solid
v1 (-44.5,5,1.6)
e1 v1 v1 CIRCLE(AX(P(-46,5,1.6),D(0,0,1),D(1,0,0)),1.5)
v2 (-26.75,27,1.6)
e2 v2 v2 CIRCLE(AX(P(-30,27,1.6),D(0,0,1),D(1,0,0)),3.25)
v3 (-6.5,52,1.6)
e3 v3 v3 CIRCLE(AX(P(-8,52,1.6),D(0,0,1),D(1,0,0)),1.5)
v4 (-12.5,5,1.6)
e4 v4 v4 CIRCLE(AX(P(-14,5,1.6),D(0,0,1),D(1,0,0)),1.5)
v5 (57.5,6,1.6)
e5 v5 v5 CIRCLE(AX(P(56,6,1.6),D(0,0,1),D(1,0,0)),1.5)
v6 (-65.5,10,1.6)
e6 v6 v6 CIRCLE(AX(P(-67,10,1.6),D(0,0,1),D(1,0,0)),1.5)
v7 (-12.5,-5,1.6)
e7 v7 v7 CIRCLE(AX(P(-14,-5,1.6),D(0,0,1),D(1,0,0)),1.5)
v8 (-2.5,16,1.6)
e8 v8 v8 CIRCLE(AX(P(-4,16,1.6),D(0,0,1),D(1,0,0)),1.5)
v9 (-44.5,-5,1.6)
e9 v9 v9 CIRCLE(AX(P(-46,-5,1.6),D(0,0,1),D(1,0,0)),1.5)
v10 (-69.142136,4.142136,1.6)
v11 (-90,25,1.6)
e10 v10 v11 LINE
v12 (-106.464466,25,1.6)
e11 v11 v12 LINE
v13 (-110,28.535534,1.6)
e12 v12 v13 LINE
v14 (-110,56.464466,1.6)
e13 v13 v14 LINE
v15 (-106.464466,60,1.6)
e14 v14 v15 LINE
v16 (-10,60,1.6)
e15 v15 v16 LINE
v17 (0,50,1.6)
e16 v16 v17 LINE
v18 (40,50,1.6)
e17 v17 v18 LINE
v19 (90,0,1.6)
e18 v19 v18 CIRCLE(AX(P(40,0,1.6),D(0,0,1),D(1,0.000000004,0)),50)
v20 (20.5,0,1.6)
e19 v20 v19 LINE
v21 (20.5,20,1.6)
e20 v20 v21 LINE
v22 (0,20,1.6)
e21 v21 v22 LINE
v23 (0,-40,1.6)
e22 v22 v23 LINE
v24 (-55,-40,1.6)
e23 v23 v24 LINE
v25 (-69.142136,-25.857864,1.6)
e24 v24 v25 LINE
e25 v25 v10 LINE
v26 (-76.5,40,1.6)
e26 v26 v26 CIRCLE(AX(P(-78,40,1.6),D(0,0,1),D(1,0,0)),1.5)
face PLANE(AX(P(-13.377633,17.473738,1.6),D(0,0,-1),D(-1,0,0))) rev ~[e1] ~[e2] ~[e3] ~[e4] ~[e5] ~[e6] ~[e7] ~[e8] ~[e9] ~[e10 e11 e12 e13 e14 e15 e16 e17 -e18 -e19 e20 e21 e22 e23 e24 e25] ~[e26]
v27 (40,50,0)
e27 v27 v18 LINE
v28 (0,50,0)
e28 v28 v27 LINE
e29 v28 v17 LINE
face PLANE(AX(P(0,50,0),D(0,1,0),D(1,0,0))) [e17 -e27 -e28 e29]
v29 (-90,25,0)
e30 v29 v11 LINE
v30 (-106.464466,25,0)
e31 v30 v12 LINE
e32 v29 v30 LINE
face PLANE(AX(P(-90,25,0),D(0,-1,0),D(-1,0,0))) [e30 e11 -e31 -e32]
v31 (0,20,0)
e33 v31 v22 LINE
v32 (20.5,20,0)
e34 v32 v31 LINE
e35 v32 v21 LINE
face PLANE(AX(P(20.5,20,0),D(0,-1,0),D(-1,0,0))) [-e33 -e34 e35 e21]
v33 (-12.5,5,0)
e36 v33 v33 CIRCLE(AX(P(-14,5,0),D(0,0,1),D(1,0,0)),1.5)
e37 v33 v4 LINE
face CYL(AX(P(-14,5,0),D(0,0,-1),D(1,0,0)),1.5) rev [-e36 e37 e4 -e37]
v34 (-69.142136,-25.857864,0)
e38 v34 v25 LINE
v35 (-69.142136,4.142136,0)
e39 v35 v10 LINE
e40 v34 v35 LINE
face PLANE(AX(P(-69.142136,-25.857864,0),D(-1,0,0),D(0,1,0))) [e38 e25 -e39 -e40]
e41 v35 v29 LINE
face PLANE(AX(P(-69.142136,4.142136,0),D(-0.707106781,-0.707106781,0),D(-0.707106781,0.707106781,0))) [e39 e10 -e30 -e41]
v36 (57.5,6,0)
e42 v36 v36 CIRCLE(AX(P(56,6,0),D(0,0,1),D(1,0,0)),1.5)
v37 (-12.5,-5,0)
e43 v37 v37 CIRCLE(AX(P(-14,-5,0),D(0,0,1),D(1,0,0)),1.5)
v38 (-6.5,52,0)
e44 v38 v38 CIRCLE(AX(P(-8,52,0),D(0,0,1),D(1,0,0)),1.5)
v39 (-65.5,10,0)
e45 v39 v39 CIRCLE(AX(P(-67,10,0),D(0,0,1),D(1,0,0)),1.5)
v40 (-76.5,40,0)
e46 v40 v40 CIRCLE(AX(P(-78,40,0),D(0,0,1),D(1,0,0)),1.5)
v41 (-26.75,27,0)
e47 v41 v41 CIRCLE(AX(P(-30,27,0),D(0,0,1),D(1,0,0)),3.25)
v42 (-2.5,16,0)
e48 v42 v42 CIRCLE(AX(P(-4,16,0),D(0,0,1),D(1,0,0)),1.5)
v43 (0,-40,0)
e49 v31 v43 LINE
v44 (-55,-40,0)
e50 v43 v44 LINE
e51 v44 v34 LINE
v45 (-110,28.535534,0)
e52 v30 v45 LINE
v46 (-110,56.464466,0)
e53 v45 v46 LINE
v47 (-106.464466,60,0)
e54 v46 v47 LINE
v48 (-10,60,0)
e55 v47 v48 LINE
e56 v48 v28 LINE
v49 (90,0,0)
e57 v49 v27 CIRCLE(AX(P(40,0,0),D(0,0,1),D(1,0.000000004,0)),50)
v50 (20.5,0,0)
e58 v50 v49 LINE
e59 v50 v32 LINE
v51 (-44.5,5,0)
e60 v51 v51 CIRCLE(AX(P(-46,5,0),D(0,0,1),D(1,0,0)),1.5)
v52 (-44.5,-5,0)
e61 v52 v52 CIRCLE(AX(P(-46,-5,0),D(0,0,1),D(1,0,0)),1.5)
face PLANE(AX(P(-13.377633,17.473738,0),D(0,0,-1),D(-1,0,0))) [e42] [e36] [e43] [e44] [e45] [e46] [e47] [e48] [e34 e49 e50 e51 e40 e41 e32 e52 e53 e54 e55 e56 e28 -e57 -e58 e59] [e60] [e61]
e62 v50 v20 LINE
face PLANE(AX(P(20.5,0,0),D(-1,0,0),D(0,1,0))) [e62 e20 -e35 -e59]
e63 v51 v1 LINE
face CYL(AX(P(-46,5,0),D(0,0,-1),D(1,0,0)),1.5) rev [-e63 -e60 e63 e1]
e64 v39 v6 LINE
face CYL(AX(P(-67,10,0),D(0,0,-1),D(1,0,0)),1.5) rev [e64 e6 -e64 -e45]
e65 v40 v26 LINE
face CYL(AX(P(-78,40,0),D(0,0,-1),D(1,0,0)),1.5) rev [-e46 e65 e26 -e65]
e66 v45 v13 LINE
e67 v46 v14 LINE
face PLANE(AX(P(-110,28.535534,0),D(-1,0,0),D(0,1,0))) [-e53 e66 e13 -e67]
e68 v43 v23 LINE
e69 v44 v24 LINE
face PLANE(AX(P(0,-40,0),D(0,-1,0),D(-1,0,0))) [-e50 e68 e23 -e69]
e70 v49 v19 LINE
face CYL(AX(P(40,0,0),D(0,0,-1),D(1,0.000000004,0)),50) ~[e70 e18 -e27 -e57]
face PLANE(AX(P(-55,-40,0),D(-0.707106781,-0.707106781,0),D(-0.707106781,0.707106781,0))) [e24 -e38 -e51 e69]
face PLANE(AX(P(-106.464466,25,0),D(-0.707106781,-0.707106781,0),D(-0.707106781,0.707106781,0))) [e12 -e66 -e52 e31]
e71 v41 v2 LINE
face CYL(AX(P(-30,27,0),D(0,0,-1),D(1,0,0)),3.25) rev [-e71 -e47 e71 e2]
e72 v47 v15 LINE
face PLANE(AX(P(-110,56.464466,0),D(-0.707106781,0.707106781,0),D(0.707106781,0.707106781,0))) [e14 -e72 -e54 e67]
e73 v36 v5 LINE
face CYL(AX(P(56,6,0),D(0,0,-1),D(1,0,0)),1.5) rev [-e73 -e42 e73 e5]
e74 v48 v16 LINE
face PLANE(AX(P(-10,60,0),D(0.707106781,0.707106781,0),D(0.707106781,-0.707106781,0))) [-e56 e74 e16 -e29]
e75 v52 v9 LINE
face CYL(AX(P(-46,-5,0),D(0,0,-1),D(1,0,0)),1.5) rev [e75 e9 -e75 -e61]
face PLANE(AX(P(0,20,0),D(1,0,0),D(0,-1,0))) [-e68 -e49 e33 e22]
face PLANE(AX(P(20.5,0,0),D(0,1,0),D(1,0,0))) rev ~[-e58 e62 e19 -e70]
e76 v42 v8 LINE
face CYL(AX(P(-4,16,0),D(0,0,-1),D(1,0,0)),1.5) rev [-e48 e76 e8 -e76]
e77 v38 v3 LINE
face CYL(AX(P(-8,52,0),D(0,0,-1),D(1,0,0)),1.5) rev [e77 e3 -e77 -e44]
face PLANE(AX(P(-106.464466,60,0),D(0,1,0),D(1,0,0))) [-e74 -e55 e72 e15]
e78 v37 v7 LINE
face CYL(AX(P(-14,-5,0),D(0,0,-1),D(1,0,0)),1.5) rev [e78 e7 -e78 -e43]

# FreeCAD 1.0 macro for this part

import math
import FreeCAD as App
import Part
import Sketcher
Q = App.Units.Quantity

doc = App.newDocument("Part")
body = doc.addObject("PartDesign::Body", "Body")

sketch1 = doc.addObject("Sketcher::SketchObject", "Sketch")
body.addObject(sketch1)
sketch1.AttachmentSupport = (doc.XY_Plane, [""])
sketch1.MapMode = "FlatFace"
sketch1.addGeometry(Part.LineSegment(App.Vector(20.5, 20, 0), App.Vector(20.5, 0, 0)), False)
sketch1.addGeometry(Part.LineSegment(App.Vector(20.5, 0, 0), App.Vector(90, 0, 0)), False)
sketch1.addGeometry(Part.ArcOfCircle(Part.Circle(App.Vector(40, 0, 0), App.Vector(0, 0, 1), 50), math.radians(0), math.radians(90)), False)
sketch1.addGeometry(Part.LineSegment(App.Vector(40, 50, 0), App.Vector(0, 50, 0)), False)
sketch1.addGeometry(Part.LineSegment(App.Vector(0, 50, 0), App.Vector(-10, 60, 0)), False)
sketch1.addGeometry(Part.LineSegment(App.Vector(-10, 60, 0), App.Vector(-106.5, 60, 0)), False)
sketch1.addGeometry(Part.LineSegment(App.Vector(-106.5, 60, 0), App.Vector(-110, 56.5, 0)), False)
sketch1.addGeometry(Part.LineSegment(App.Vector(-110, 56.5, 0), App.Vector(-110, 28.5, 0)), False)
sketch1.addGeometry(Part.LineSegment(App.Vector(-110, 28.5, 0), App.Vector(-106.5, 25, 0)), False)
sketch1.addGeometry(Part.LineSegment(App.Vector(-106.5, 25, 0), App.Vector(-90, 25, 0)), False)
sketch1.addGeometry(Part.LineSegment(App.Vector(-90, 25, 0), App.Vector(-69.1, 4.1, 0)), False)
sketch1.addGeometry(Part.LineSegment(App.Vector(-69.1, 4.1, 0), App.Vector(-69.1, -25.9, 0)), False)
sketch1.addGeometry(Part.LineSegment(App.Vector(-69.1, -25.9, 0), App.Vector(-55, -40, 0)), False)
sketch1.addGeometry(Part.LineSegment(App.Vector(-55, -40, 0), App.Vector(0, -40, 0)), False)
sketch1.addGeometry(Part.LineSegment(App.Vector(0, -40, 0), App.Vector(0, 20, 0)), False)
sketch1.addGeometry(Part.LineSegment(App.Vector(0, 20, 0), App.Vector(20.5, 20, 0)), False)
sketch1.addGeometry(Part.Circle(App.Vector(56, 6, 0), App.Vector(0, 0, 1), 1.5), False)
sketch1.addGeometry(Part.Circle(App.Vector(-4, 16, 0), App.Vector(0, 0, 1), 1.5), False)
sketch1.addGeometry(Part.Circle(App.Vector(-14, -5, 0), App.Vector(0, 0, 1), 1.5), False)
sketch1.addGeometry(Part.Circle(App.Vector(-14, 5, 0), App.Vector(0, 0, 1), 1.5), False)
sketch1.addGeometry(Part.Circle(App.Vector(-46, -5, 0), App.Vector(0, 0, 1), 1.5), False)
sketch1.addGeometry(Part.Circle(App.Vector(-46, 5, 0), App.Vector(0, 0, 1), 1.5), False)
sketch1.addGeometry(Part.Circle(App.Vector(-67, 10, 0), App.Vector(0, 0, 1), 1.5), False)
sketch1.addGeometry(Part.Circle(App.Vector(-8, 52, 0), App.Vector(0, 0, 1), 1.5), False)
sketch1.addGeometry(Part.Circle(App.Vector(-30, 27, 0), App.Vector(0, 0, 1), 3.2), False)
sketch1.addGeometry(Part.Circle(App.Vector(-78, 40, 0), App.Vector(0, 0, 1), 1.5), False)
sketch1.addConstraint(Sketcher.Constraint("Coincident", 0, 2, 1, 1))
sketch1.addConstraint(Sketcher.Constraint("Coincident", 1, 2, 2, 1))
sketch1.addConstraint(Sketcher.Constraint("Tangent", 2, 2, 3, 1))
sketch1.addConstraint(Sketcher.Constraint("Coincident", 3, 2, 4, 1))
sketch1.addConstraint(Sketcher.Constraint("Coincident", 4, 2, 5, 1))
sketch1.addConstraint(Sketcher.Constraint("Coincident", 5, 2, 6, 1))
sketch1.addConstraint(Sketcher.Constraint("Coincident", 6, 2, 7, 1))
sketch1.addConstraint(Sketcher.Constraint("Coincident", 7, 2, 8, 1))
sketch1.addConstraint(Sketcher.Constraint("Coincident", 8, 2, 9, 1))
sketch1.addConstraint(Sketcher.Constraint("Coincident", 9, 2, 10, 1))
sketch1.addConstraint(Sketcher.Constraint("Coincident", 10, 2, 11, 1))
sketch1.addConstraint(Sketcher.Constraint("Coincident", 11, 2, 12, 1))
sketch1.addConstraint(Sketcher.Constraint("Coincident", 12, 2, 13, 1))
sketch1.addConstraint(Sketcher.Constraint("Coincident", 13, 2, 14, 1))
sketch1.addConstraint(Sketcher.Constraint("Coincident", 14, 2, 15, 1))
sketch1.addConstraint(Sketcher.Constraint("Coincident", 15, 2, 0, 1))
sketch1.addConstraint(Sketcher.Constraint("Vertical", 0))
sketch1.addConstraint(Sketcher.Constraint("Horizontal", 1))
sketch1.addConstraint(Sketcher.Constraint("Horizontal", 3))
sketch1.addConstraint(Sketcher.Constraint("Horizontal", 5))
sketch1.addConstraint(Sketcher.Constraint("Vertical", 7))
sketch1.addConstraint(Sketcher.Constraint("Horizontal", 9))
sketch1.addConstraint(Sketcher.Constraint("Vertical", 11))
sketch1.addConstraint(Sketcher.Constraint("Horizontal", 13))
sketch1.addConstraint(Sketcher.Constraint("Vertical", 14))
sketch1.addConstraint(Sketcher.Constraint("Horizontal", 15))
sketch1.addConstraint(Sketcher.Constraint("Equal", 16, 17))
sketch1.addConstraint(Sketcher.Constraint("Equal", 17, 18))
sketch1.addConstraint(Sketcher.Constraint("Equal", 18, 19))
sketch1.addConstraint(Sketcher.Constraint("Equal", 19, 20))
sketch1.addConstraint(Sketcher.Constraint("Equal", 20, 21))
sketch1.addConstraint(Sketcher.Constraint("Equal", 21, 22))
sketch1.addConstraint(Sketcher.Constraint("Equal", 22, 23))
sketch1.addConstraint(Sketcher.Constraint("Equal", 23, 25))
sketch1.addConstraint(Sketcher.Constraint("Symmetric", 18, 3, 19, 3, -1))
sketch1.addConstraint(Sketcher.Constraint("Symmetric", 20, 3, 21, 3, -1))
sketch1.addConstraint(Sketcher.Constraint("PointOnObject", 2, 3, -1))
sketch1.addConstraint(Sketcher.Constraint("PointOnObject", 0, 2, -1))
sketch1.addConstraint(Sketcher.Constraint("PointOnObject", 3, 2, -2))
sketch1.addConstraint(Sketcher.Constraint("PointOnObject", 13, 2, -2))
sketch1.addConstraint(Sketcher.Constraint("Perpendicular", 4, 6))
sketch1.addConstraint(Sketcher.Constraint("Perpendicular", 6, 8))
sketch1.addConstraint(Sketcher.Constraint("Parallel", 8, 10))
sketch1.addConstraint(Sketcher.Constraint("Parallel", 10, 12))
sketch1.addConstraint(Sketcher.Constraint("Horizontal", 18, 3, 20, 3))
sketch1.addConstraint(Sketcher.Constraint("Vertical", 5, 2, 8, 2))
sketch1.addConstraint(Sketcher.Constraint("Equal", 6, 8))
sketch1.addConstraint(Sketcher.Constraint("Diameter", 16, Q("3 mm")))
sketch1.addConstraint(Sketcher.Constraint("Radius", 2, Q("50 mm")))
sketch1.addConstraint(Sketcher.Constraint("Diameter", 24, Q("6.5 mm")))
sketch1.addConstraint(Sketcher.Constraint("DistanceX", 3, 2, 3, 1, Q("40 mm")))
sketch1.addConstraint(Sketcher.Constraint("DistanceX", 13, 1, 13, 2, Q("55 mm")))
sketch1.addConstraint(Sketcher.Constraint("DistanceY", 0, 2, 0, 1, Q("20 mm")))
sketch1.addConstraint(Sketcher.Constraint("DistanceY", 11, 2, 11, 1, Q("30 mm")))
sketch1.addConstraint(Sketcher.Constraint("DistanceY", 14, 1, 14, 2, Q("60 mm")))
sketch1.addConstraint(Sketcher.Constraint("Distance", 6, Q("5 mm")))
sketch1.addConstraint(Sketcher.Constraint("Distance", 12, Q("20.000001 mm")))
sketch1.addConstraint(Sketcher.Constraint("DistanceX", 1, 1, 1, 2, Q("69.5 mm")))
sketch1.addConstraint(Sketcher.Constraint("DistanceX", -1, 1, 16, 3, Q("56 mm")))
sketch1.addConstraint(Sketcher.Constraint("DistanceY", -1, 1, 16, 3, Q("6 mm")))
sketch1.addConstraint(Sketcher.Constraint("DistanceX", 17, 3, -1, 1, Q("4 mm")))
sketch1.addConstraint(Sketcher.Constraint("DistanceY", -1, 1, 17, 3, Q("16 mm")))
sketch1.addConstraint(Sketcher.Constraint("DistanceX", 18, 3, -1, 1, Q("14 mm")))
sketch1.addConstraint(Sketcher.Constraint("DistanceY", 18, 3, -1, 1, Q("5 mm")))
sketch1.addConstraint(Sketcher.Constraint("DistanceX", 20, 3, -1, 1, Q("46 mm")))
sketch1.addConstraint(Sketcher.Constraint("DistanceX", 22, 3, -1, 1, Q("67 mm")))
sketch1.addConstraint(Sketcher.Constraint("DistanceY", -1, 1, 22, 3, Q("10 mm")))
sketch1.addConstraint(Sketcher.Constraint("DistanceX", 23, 3, -1, 1, Q("8 mm")))
sketch1.addConstraint(Sketcher.Constraint("DistanceY", -1, 1, 23, 3, Q("52 mm")))
sketch1.addConstraint(Sketcher.Constraint("DistanceX", 24, 3, -1, 1, Q("30 mm")))
sketch1.addConstraint(Sketcher.Constraint("DistanceY", -1, 1, 24, 3, Q("27 mm")))
sketch1.addConstraint(Sketcher.Constraint("DistanceX", 25, 3, -1, 1, Q("78 mm")))
sketch1.addConstraint(Sketcher.Constraint("DistanceY", -1, 1, 25, 3, Q("40 mm")))
sketch1.addConstraint(Sketcher.Constraint("DistanceX", 4, 2, -1, 1, Q("10 mm")))
sketch1.addConstraint(Sketcher.Constraint("DistanceX", 6, 2, -1, 1, Q("110 mm")))
sketch1.addConstraint(Sketcher.Constraint("DistanceY", -1, 1, 8, 2, Q("25 mm")))
pad1 = doc.addObject("PartDesign::Pad", "Pad")
body.addObject(pad1)
pad1.Profile = sketch1
pad1.Length = 1.6

doc.recompute()
